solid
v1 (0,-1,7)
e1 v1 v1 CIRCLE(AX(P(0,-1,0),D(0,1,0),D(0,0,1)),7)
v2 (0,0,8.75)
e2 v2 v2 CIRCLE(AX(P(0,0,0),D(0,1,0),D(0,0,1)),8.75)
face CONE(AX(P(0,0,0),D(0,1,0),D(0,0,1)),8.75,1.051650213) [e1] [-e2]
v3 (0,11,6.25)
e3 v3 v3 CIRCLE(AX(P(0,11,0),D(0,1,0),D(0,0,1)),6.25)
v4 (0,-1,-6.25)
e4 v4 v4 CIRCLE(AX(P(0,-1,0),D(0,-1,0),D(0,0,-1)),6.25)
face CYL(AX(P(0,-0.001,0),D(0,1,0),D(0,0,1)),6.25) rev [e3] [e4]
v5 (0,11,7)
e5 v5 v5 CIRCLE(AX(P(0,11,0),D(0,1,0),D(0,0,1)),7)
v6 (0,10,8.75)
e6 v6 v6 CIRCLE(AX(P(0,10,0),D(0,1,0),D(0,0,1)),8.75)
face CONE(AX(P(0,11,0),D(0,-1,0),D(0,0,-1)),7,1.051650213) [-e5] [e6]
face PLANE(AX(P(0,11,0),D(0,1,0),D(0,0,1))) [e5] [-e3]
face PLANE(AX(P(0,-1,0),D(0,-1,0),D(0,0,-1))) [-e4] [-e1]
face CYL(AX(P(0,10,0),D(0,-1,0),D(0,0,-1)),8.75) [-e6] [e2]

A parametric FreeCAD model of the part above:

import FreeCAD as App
import Part
import Sketcher
from FreeCAD import Vector

doc = App.newDocument("Part")
params = doc.addObject("Spreadsheet::Sheet", "Params")
for row, (alias, value) in enumerate([
    ("sketch1_diameter", "17.5 mm"),
    ("pad1_length", "10 mm"),
    ("sketch2_diameter", "12.5 mm"),
    ("sketch3_diameter", "14 mm"),
    ("sketch3_diameter2", "12.5 mm"),
    ("pad2_length", "1 mm"),
    ("sketch4_diameter", "14 mm"),
    ("sketch4_diameter2", "12.5 mm"),
    ("pad3_length", "1 mm"),
    ("sketch5_height", "1 mm"),
    ("sketch5_width", "1.75 mm"),
    ("revolution_angle", "360 deg"),
], start=1):
    params.set(f"A{row}", alias)
    params.set(f"B{row}", "=" + value)
    params.setAlias(f"B{row}", alias)

body = doc.addObject("PartDesign::Body", "Body")

# Sketch on XZ plane
sketch1 = body.newObject("Sketcher::SketchObject", "Sketch")
sketch1.AttachmentSupport = (doc.getObject("XZ_Plane"), [""])
sketch1.MapMode = "FlatFace"
sketch1.addGeometry(Part.Circle(Vector(0, 0, 0), Vector(0, 0, 1), 8.75), False)
sketch1.addConstraint([
    Sketcher.Constraint("Coincident", 0, 3, -1, 1),
    Sketcher.Constraint("Diameter", 0, 17.5),
])
sketch1.setExpression("Constraints[1]", "Params.sketch1_diameter")
pad1 = body.newObject("PartDesign::Pad", "Pad")
pad1.Profile = sketch1
pad1.setExpression("Length", "Params.pad1_length")
pad1.Reversed = True

# Sketch on XZ plane
sketch2 = body.newObject("Sketcher::SketchObject", "Sketch001")
sketch2.AttachmentSupport = (doc.getObject("XZ_Plane"), [""])
sketch2.MapMode = "FlatFace"
sketch2.AttachmentOffset = App.Placement(Vector(0, 0, -10), App.Rotation())
sketch2.addGeometry(Part.Circle(Vector(0, 0, 0), Vector(0, 0, 1), 6.25), False)
sketch2.addConstraint([
    Sketcher.Constraint("Coincident", 0, 3, -1, 1),
    Sketcher.Constraint("Diameter", 0, 12.5),
])
sketch2.setExpression("Constraints[1]", "Params.sketch2_diameter")
pocket1 = body.newObject("PartDesign::Pocket", "Pocket")
pocket1.Profile = sketch2
pocket1.Type = "UpToFirst"
pocket1.Reversed = True

# Sketch on XZ plane
sketch3 = body.newObject("Sketcher::SketchObject", "Sketch002")
sketch3.AttachmentSupport = (doc.getObject("XZ_Plane"), [""])
sketch3.MapMode = "FlatFace"
sketch3.AttachmentOffset = App.Placement(Vector(0, 0, -11), App.Rotation())
sketch3.addGeometry([
    Part.Circle(Vector(0, 0, 0), Vector(0, 0, 1), 7),
    Part.Circle(Vector(0, 0, 0), Vector(0, 0, 1), 6.25),
], False)
sketch3.addConstraint([
    Sketcher.Constraint("Coincident", 0, 3, -1, 1),
    Sketcher.Constraint("Coincident", 1, 3, -1, 1),
    Sketcher.Constraint("Diameter", 0, 14.0),
    Sketcher.Constraint("Diameter", 1, 12.5),
])
sketch3.setExpression("Constraints[2]", "Params.sketch3_diameter")
sketch3.setExpression("Constraints[3]", "Params.sketch3_diameter2")
pad2 = body.newObject("PartDesign::Pad", "Pad001")
pad2.Profile = sketch3
pad2.setExpression("Length", "Params.pad2_length")

# Sketch on XZ plane
sketch4 = body.newObject("Sketcher::SketchObject", "Sketch003")
sketch4.AttachmentSupport = (doc.getObject("XZ_Plane"), [""])
sketch4.MapMode = "FlatFace"
sketch4.addGeometry([
    Part.Circle(Vector(0, 0, 0), Vector(0, 0, 1), 7),
    Part.Circle(Vector(0, 0, 0), Vector(0, 0, 1), 6.25),
], False)
sketch4.addConstraint([
    Sketcher.Constraint("Coincident", 0, 3, -1, 1),
    Sketcher.Constraint("Coincident", 1, 3, -1, 1),
    Sketcher.Constraint("Diameter", 0, 14.0),
    Sketcher.Constraint("Diameter", 1, 12.5),
])
sketch4.setExpression("Constraints[2]", "Params.sketch4_diameter")
sketch4.setExpression("Constraints[3]", "Params.sketch4_diameter2")
pad3 = body.newObject("PartDesign::Pad", "Pad002")
pad3.Profile = sketch4
pad3.setExpression("Length", "Params.pad3_length")

# Sketch on XY plane
sketch5 = body.newObject("Sketcher::SketchObject", "Sketch004")
sketch5.AttachmentSupport = (doc.getObject("XY_Plane"), [""])
sketch5.MapMode = "FlatFace"
sketch5.addGeometry([
    Part.LineSegment(Vector(-7, 11, 0), Vector(-8.75, 10, 0)),  # 0
    Part.LineSegment(Vector(-8.75, 10, 0), Vector(-7, 10, 0)),  # 1
    Part.LineSegment(Vector(-7, 10, 0), Vector(-7, 11, 0)),  # 2
    Part.LineSegment(Vector(-7, 0, 0), Vector(-8.75, 0, 0)),  # 3
    Part.LineSegment(Vector(-8.75, 0, 0), Vector(-7, -1, 0)),  # 4
    Part.LineSegment(Vector(-7, -1, 0), Vector(-7, 0, 0)),  # 5
], False)
sketch5.addConstraint([
    Sketcher.Constraint("Coincident", 0, 2, 1, 1),
    Sketcher.Constraint("Coincident", 1, 2, 2, 1),
    Sketcher.Constraint("Coincident", 2, 2, 0, 1),
    Sketcher.Constraint("Coincident", 3, 2, 4, 1),
    Sketcher.Constraint("Coincident", 4, 2, 5, 1),
    Sketcher.Constraint("Coincident", 5, 2, 3, 1),
    Sketcher.Constraint("Horizontal", 1),
    Sketcher.Constraint("Vertical", 2),
    Sketcher.Constraint("Horizontal", 3),
    Sketcher.Constraint("Vertical", 5),
    Sketcher.Constraint("PointOnObject", 3, 2, -1),
    Sketcher.Constraint("Vertical", 0, 2, 3, 2),
    Sketcher.Constraint("Vertical", 2, 2, 4, 2),
    Sketcher.Constraint("Equal", 2, 5),
    Sketcher.Constraint("DistanceY", 2, 1, 2, 2, 1.0),
    Sketcher.Constraint("DistanceY", -1, 1, 0, 2, 10.0),
    Sketcher.Constraint("DistanceX", 1, 2, -1, 1, 7.0),
    Sketcher.Constraint("DistanceX", 1, 1, 1, 2, 1.75),
])
sketch5.setExpression("Constraints[14]", "Params.sketch5_height")
sketch5.setExpression("Constraints[17]", "Params.sketch5_width")
revolution = body.newObject("PartDesign::Revolution", "Revolution")
revolution.Profile = sketch5
revolution.ReferenceAxis = (sketch5, ["V_Axis"])
revolution.setExpression("Angle", "Params.revolution_angle")

doc.recompute()
